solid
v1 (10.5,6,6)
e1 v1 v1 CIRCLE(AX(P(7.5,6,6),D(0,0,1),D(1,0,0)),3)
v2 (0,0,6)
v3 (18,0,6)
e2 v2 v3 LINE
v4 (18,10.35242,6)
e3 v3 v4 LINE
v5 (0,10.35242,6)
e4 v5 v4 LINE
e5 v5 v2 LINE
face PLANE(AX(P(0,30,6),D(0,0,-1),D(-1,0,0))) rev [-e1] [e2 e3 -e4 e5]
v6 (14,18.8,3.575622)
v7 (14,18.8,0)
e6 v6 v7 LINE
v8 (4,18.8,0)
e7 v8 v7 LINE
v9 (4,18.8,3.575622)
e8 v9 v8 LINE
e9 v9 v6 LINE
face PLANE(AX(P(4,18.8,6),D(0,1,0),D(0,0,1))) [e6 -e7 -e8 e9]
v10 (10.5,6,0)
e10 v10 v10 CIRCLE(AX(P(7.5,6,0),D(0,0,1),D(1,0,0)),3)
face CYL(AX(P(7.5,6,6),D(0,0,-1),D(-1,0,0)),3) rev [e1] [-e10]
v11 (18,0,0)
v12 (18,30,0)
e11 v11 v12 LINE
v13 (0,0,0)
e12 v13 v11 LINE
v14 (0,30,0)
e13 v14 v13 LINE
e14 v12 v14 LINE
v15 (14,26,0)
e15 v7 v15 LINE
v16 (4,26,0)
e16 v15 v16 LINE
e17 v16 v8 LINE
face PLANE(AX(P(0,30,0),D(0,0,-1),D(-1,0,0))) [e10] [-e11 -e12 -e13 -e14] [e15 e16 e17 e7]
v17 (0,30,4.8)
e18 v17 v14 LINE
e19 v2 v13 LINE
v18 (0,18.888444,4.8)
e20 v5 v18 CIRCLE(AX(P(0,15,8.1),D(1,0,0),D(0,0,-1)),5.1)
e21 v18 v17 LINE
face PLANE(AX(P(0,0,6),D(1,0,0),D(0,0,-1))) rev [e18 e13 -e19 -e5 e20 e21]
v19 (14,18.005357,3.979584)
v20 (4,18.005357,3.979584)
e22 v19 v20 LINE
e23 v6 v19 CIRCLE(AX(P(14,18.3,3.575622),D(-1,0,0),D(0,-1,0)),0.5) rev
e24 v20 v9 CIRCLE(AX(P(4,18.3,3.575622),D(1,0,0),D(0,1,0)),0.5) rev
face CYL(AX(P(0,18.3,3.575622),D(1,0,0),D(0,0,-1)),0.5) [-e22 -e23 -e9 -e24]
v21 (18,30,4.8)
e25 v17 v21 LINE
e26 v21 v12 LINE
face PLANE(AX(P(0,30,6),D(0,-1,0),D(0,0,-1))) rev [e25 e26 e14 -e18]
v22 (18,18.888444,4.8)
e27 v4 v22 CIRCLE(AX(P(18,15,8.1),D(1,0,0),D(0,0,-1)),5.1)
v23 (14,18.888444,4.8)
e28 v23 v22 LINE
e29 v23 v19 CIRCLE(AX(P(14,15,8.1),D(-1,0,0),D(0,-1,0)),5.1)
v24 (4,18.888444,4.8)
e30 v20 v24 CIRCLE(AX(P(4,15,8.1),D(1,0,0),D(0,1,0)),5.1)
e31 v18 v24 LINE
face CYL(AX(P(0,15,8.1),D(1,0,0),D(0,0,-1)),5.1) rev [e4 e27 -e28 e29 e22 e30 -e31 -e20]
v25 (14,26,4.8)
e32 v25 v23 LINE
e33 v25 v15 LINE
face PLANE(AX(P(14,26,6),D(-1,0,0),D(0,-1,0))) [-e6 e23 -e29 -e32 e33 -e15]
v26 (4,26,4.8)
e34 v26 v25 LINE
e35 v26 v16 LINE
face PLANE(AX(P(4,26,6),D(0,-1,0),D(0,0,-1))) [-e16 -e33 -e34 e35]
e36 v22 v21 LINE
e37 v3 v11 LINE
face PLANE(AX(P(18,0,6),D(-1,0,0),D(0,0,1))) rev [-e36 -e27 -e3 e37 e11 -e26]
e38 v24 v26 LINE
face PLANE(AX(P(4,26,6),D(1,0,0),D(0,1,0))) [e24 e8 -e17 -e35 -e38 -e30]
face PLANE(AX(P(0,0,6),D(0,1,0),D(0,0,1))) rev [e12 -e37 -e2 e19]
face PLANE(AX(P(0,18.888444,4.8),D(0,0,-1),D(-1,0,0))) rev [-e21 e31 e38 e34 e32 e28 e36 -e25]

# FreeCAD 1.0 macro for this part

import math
import FreeCAD as App
import Part
import Sketcher

V = App.Vector
Q = App.Units.Quantity


def edges_at(feature, points):
    """Names of the edges that pass closest to the given points."""
    edges = feature.Shape.Edges
    near = lambda p: min(range(len(edges)), key=lambda i: edges[i].distToShape(Part.Vertex(*p))[0])
    return sorted({f"Edge{near(p) + 1}" for p in points})

doc = App.newDocument("Part")
body = doc.addObject("PartDesign::Body", "Body")

# Sketch on XY plane
sketch1 = body.newObject("Sketcher::SketchObject", "Sketch")
sketch1.AttachmentSupport = (doc.getObject("XY_Plane"), [""])
sketch1.MapMode = "FlatFace"
sketch1.addGeometry([
    Part.LineSegment(V(0, 30, 0), V(0, 0, 0)),  # 0
    Part.LineSegment(V(0, 0, 0), V(18, 0, 0)),  # 1
    Part.LineSegment(V(18, 0, 0), V(18, 30, 0)),  # 2
    Part.LineSegment(V(18, 30, 0), V(0, 30, 0)),  # 3
    Part.Circle(V(7.5, 6, 0), V(0, 0, 1), 3),  # 4
    Part.LineSegment(V(14, 18.8, 0), V(4, 18.8, 0)),  # 5
    Part.LineSegment(V(4, 18.8, 0), V(4, 26, 0)),  # 6
    Part.LineSegment(V(4, 26, 0), V(14, 26, 0)),  # 7
    Part.LineSegment(V(14, 26, 0), V(14, 18.8, 0)),  # 8
], False)
sketch1.addConstraint([
    Sketcher.Constraint("Coincident", 0, 2, 1, 1),
    Sketcher.Constraint("Coincident", 1, 2, 2, 1),
    Sketcher.Constraint("Coincident", 2, 2, 3, 1),
    Sketcher.Constraint("Coincident", 3, 2, 0, 1),
    Sketcher.Constraint("Coincident", 5, 2, 6, 1),
    Sketcher.Constraint("Coincident", 6, 2, 7, 1),
    Sketcher.Constraint("Coincident", 7, 2, 8, 1),
    Sketcher.Constraint("Coincident", 8, 2, 5, 1),
    Sketcher.Constraint("Vertical", 0),
    Sketcher.Constraint("Horizontal", 1),
    Sketcher.Constraint("Vertical", 2),
    Sketcher.Constraint("Horizontal", 3),
    Sketcher.Constraint("Horizontal", 5),
    Sketcher.Constraint("Vertical", 6),
    Sketcher.Constraint("Horizontal", 7),
    Sketcher.Constraint("Vertical", 8),
    Sketcher.Constraint("Coincident", 0, 2, -1, 1),
    Sketcher.Constraint("Diameter", 4, Q("6 mm")),
    Sketcher.Constraint("DistanceX", 1, 1, 1, 2, Q("18 mm")),
    Sketcher.Constraint("DistanceX", 5, 2, 5, 1, Q("10 mm")),
    Sketcher.Constraint("DistanceY", 0, 2, 0, 1, Q("30 mm")),
    Sketcher.Constraint("DistanceY", 6, 1, 6, 2, Q("7.2 mm")),
    Sketcher.Constraint("DistanceY", -1, 1, 4, 3, Q("6 mm")),
    Sketcher.Constraint("DistanceX", -1, 1, 5, 2, Q("4 mm")),
    Sketcher.Constraint("DistanceY", -1, 1, 6, 2, Q("26 mm")),
    Sketcher.Constraint("DistanceX", -1, 1, 4, 3, Q("7.5 mm")),
])
pad1 = body.newObject("PartDesign::Pad", "Pad")
pad1.Profile = sketch1
pad1.Length = 6

# Sketch on YZ plane
sketch2 = body.newObject("Sketcher::SketchObject", "Sketch001")
sketch2.AttachmentSupport = (doc.getObject("YZ_Plane"), [""])
sketch2.MapMode = "FlatFace"
sketch2.AttachmentOffset = App.Placement(V(0, 0, 18), App.Rotation())
sketch2.addGeometry([
    Part.LineSegment(V(18.9, 4.8, 0), V(30, 4.8, 0)),
    Part.LineSegment(V(30, 4.8, 0), V(30, 6, 0)),
    Part.LineSegment(V(30, 6, 0), V(10.4, 6, 0)),
    Part.ArcOfCircle(Part.Circle(V(15, 8.1, 0), V(0, 0, 1), 5.1), math.radians(-156), math.radians(-40)),
], False)
sketch2.addConstraint([
    Sketcher.Constraint("Coincident", 0, 2, 1, 1),
    Sketcher.Constraint("Coincident", 1, 2, 2, 1),
    Sketcher.Constraint("Coincident", 2, 2, 3, 1),
    Sketcher.Constraint("Coincident", 3, 2, 0, 1),
    Sketcher.Constraint("Horizontal", 0),
    Sketcher.Constraint("Vertical", 1),
    Sketcher.Constraint("Horizontal", 2),
    Sketcher.Constraint("Radius", 3, Q("5.1 mm")),
    Sketcher.Constraint("DistanceY", 1, 1, 1, 2, Q("1.2 mm")),
    Sketcher.Constraint("DistanceX", -1, 1, 3, 3, Q("15 mm")),
    Sketcher.Constraint("DistanceX", -1, 1, 0, 2, Q("30 mm")),
    Sketcher.Constraint("DistanceY", -1, 1, 1, 2, Q("6 mm")),
    Sketcher.Constraint("DistanceY", -1, 1, 3, 3, Q("8.1 mm")),
])
pocket1 = body.newObject("PartDesign::Pocket", "Pocket")
pocket1.Profile = sketch2
pocket1.Type = "ThroughAll"
doc.recompute()

fillet = body.newObject("PartDesign::Fillet", "Fillet")
fillet.Base = (pocket1, edges_at(pocket1, [(9, 18.8, 4.699)]))
fillet.Radius = 0.5

doc.recompute()
